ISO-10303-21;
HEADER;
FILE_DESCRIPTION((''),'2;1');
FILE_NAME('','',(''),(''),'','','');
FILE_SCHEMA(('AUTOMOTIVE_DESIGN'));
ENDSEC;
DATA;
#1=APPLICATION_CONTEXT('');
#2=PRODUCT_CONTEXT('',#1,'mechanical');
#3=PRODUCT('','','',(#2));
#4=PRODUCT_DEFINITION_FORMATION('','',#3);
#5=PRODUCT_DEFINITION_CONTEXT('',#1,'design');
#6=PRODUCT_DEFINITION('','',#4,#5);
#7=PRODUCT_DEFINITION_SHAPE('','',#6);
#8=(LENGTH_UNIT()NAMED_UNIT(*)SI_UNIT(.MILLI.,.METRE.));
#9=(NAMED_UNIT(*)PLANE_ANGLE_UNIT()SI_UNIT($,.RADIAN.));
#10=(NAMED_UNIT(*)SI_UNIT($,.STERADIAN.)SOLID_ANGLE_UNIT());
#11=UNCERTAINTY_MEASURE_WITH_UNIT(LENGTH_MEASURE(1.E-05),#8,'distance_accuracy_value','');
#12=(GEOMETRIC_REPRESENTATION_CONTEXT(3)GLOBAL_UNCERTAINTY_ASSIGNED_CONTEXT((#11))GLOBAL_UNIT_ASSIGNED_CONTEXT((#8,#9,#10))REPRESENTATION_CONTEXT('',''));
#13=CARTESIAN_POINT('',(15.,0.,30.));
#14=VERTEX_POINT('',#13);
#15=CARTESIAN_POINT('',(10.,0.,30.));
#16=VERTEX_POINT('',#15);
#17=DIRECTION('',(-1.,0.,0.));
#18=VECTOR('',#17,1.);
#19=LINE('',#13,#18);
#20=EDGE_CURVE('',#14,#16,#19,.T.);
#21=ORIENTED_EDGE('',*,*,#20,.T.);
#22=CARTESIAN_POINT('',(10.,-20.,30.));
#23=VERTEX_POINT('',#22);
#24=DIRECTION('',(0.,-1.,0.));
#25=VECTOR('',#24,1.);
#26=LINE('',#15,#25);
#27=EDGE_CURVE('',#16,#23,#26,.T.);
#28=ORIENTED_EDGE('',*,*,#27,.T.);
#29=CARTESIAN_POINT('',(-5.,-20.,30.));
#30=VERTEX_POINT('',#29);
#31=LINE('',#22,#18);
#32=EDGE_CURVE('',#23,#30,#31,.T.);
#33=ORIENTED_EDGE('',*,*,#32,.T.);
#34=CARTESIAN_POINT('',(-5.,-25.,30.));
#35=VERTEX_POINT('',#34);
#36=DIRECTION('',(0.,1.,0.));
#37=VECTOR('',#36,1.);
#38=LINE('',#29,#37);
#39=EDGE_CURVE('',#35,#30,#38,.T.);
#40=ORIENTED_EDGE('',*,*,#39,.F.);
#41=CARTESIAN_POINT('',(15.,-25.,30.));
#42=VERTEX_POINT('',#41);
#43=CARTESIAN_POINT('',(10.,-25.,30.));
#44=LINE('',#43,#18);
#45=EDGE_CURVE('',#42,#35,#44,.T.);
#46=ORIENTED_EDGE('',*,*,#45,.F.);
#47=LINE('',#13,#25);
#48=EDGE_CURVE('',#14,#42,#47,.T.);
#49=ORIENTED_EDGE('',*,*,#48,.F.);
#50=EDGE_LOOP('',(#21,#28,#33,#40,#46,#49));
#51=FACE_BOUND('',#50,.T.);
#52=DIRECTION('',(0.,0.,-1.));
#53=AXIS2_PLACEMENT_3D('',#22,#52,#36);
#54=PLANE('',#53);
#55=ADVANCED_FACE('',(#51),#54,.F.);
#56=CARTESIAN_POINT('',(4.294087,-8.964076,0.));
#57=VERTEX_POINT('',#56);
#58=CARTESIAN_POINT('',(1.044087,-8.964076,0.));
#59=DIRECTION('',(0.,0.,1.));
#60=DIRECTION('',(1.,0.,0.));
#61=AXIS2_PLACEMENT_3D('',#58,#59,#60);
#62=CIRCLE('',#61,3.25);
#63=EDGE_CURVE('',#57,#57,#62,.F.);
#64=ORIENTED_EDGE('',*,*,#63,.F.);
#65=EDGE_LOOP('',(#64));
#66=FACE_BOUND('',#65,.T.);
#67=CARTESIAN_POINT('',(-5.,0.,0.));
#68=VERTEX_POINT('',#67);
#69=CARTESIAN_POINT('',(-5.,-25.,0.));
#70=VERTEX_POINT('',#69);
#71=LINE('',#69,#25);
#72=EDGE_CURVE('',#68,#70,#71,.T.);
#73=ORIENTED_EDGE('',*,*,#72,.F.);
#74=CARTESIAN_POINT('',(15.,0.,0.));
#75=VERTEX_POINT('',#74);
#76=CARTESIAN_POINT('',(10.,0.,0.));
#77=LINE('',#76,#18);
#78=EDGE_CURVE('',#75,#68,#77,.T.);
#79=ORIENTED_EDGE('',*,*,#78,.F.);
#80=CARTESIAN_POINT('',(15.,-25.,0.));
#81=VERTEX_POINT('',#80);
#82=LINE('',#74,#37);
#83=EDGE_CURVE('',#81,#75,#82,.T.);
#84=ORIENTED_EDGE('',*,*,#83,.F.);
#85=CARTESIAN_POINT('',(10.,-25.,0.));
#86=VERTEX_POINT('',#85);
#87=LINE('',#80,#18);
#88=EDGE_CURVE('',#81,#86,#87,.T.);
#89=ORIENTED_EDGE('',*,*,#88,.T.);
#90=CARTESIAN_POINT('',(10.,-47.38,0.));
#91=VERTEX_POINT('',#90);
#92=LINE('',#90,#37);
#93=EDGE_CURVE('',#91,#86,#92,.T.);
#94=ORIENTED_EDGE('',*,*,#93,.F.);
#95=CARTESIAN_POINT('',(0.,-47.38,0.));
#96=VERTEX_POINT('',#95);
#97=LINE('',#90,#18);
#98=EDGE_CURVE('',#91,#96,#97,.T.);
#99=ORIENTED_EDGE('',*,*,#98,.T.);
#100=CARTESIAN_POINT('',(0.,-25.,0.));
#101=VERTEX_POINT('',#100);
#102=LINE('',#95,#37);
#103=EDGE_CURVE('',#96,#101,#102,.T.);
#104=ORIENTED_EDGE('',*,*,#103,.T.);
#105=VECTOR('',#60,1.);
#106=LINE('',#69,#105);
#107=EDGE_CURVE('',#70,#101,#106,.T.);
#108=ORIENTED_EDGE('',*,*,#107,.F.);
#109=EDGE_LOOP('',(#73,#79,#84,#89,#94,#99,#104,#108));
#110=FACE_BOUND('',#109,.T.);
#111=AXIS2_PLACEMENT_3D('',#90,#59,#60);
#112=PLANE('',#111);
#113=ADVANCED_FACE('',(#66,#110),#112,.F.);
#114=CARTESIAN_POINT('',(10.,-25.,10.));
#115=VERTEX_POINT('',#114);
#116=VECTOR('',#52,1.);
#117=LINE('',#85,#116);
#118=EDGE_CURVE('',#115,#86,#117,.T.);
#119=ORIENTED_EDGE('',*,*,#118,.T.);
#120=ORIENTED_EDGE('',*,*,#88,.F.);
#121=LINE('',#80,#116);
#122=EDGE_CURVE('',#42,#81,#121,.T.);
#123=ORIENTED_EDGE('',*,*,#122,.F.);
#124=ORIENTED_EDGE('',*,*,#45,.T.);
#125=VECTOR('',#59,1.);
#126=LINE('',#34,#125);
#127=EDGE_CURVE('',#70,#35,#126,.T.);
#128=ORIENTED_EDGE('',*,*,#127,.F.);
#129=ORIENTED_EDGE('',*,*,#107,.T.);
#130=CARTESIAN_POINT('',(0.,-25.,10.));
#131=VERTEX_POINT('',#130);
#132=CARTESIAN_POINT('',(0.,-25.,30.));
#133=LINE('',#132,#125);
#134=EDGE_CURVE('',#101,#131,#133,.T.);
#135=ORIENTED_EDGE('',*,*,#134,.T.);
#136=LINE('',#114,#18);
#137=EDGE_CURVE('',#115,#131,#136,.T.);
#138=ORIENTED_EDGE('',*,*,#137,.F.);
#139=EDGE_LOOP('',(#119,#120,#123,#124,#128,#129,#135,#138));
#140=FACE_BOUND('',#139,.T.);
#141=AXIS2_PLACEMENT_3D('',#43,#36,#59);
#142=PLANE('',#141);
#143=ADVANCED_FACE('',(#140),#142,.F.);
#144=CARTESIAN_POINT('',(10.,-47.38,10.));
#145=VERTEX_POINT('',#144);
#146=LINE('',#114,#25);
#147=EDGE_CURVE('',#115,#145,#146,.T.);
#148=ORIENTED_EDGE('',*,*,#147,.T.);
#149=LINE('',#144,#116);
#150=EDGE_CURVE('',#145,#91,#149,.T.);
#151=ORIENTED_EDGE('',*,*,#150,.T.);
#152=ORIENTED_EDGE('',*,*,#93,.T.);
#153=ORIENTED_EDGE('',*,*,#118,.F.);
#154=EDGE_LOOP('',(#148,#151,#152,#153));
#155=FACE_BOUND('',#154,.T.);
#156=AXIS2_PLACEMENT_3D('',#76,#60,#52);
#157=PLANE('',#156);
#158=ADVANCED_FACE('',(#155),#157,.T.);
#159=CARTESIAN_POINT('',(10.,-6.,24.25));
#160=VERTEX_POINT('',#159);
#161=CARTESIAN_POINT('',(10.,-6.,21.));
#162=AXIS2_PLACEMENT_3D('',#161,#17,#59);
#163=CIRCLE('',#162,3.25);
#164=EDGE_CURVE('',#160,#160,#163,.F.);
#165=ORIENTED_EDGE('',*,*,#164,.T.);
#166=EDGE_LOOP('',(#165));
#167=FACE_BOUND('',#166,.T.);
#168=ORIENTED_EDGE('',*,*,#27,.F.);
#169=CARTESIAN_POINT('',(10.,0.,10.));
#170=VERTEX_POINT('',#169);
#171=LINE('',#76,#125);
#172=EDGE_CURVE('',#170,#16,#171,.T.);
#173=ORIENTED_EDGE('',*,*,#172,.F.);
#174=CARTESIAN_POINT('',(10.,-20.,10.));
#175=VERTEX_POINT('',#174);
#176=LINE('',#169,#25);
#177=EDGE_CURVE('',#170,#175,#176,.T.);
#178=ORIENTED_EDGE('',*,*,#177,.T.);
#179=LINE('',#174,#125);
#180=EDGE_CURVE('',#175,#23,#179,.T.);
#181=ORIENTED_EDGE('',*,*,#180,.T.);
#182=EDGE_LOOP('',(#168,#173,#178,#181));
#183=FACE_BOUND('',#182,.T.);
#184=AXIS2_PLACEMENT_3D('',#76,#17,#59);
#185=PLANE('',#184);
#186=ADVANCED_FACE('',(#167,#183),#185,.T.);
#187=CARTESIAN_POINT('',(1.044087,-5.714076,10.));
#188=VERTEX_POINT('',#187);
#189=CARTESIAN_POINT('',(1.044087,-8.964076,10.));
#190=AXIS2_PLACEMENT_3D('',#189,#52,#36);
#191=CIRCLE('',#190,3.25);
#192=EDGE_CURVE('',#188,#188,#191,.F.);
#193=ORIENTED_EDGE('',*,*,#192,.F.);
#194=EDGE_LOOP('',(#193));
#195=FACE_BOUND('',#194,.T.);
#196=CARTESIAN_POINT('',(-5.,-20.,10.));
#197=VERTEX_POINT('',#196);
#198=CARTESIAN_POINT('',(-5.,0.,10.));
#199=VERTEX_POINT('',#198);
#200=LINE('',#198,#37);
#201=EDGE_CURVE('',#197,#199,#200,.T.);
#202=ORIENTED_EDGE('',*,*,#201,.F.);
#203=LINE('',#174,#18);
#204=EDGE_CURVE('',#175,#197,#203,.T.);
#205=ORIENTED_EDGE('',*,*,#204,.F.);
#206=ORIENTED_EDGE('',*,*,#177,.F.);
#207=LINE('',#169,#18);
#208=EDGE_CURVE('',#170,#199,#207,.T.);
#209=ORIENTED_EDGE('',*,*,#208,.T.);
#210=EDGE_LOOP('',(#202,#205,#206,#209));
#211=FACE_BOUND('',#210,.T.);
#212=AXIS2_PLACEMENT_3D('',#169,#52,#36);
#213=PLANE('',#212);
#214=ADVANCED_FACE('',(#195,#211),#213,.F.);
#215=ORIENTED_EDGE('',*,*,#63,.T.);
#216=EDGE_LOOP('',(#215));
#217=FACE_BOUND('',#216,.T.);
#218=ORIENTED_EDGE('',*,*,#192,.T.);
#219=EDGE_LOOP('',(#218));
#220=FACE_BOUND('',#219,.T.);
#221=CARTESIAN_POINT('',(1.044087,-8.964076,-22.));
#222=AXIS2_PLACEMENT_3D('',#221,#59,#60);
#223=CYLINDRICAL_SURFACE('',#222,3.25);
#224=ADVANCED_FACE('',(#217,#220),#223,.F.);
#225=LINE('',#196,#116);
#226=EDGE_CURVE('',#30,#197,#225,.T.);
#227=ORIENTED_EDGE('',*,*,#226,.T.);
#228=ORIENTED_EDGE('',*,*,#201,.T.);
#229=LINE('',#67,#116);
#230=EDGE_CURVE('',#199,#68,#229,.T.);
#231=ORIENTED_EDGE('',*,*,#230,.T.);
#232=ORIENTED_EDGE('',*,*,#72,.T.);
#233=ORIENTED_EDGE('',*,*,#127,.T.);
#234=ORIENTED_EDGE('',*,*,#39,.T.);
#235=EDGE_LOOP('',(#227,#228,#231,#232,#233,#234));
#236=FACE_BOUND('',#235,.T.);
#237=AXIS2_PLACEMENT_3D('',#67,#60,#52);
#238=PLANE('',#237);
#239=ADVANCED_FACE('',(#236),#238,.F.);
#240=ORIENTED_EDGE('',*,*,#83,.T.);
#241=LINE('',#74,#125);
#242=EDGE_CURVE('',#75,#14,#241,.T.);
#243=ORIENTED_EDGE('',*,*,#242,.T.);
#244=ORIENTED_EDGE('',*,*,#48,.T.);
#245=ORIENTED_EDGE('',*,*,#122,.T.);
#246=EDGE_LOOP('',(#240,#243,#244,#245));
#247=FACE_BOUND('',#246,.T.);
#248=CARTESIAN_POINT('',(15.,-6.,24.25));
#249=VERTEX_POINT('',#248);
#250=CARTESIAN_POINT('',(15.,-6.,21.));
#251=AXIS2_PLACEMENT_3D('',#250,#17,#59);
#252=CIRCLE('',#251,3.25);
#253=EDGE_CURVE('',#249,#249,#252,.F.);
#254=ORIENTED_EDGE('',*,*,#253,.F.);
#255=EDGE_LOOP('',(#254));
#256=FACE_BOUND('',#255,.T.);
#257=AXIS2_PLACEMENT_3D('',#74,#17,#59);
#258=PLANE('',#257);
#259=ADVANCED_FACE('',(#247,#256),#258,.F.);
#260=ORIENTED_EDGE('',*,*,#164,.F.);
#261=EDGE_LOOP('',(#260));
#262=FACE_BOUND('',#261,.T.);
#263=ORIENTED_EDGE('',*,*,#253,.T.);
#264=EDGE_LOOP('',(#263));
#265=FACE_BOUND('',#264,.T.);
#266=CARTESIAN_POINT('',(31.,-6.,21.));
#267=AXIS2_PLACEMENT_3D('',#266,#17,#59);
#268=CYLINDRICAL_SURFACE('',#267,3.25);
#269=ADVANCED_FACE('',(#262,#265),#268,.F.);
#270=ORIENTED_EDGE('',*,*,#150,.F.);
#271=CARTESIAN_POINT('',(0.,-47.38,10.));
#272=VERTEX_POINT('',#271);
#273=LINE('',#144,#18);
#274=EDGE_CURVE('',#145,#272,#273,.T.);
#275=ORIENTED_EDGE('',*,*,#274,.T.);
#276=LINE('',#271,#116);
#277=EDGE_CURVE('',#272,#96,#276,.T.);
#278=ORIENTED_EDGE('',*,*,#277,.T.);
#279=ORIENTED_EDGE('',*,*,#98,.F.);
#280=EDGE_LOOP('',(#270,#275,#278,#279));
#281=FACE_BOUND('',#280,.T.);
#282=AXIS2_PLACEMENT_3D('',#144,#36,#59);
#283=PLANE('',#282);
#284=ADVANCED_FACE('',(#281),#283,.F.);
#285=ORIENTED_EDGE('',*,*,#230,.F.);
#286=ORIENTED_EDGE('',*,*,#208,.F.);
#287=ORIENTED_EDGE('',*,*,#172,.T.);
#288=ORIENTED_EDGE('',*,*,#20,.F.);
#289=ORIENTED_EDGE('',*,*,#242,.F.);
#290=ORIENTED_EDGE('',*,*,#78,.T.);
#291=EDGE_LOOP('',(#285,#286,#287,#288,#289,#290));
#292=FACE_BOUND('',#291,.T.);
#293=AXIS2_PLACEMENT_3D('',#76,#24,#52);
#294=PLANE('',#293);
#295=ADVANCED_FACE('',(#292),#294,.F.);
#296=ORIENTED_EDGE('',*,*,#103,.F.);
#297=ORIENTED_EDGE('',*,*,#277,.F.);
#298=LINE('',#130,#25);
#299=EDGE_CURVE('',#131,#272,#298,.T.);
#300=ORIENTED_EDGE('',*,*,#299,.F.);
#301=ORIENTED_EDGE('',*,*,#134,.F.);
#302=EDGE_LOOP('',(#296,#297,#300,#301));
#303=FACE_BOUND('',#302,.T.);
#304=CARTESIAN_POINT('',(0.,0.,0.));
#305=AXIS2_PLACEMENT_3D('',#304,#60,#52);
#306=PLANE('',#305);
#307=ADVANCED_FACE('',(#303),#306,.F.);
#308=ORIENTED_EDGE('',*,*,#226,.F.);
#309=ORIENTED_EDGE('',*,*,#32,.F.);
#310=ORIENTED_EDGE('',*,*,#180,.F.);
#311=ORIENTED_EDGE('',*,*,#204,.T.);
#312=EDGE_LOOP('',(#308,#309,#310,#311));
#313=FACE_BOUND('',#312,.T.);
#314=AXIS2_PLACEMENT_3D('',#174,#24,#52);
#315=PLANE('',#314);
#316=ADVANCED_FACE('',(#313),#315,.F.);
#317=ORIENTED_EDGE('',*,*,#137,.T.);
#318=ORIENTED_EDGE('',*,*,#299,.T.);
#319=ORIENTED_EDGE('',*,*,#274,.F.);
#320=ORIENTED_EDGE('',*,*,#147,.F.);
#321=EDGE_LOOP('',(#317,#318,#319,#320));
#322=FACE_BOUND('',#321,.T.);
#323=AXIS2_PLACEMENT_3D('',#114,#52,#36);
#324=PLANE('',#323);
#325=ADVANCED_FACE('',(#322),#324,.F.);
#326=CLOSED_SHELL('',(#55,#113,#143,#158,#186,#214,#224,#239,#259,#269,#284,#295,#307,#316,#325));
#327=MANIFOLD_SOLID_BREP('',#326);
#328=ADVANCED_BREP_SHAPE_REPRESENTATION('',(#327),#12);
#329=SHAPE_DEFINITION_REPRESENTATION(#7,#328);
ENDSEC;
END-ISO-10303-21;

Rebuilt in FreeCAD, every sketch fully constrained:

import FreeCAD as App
import Part
import Sketcher

V = App.Vector
Q = App.Units.Quantity

doc = App.newDocument("Part")
body = doc.addObject("PartDesign::Body", "Body")

# Sketch on YZ plane
sketch1 = body.newObject("Sketcher::SketchObject", "Sketch")
sketch1.AttachmentSupport = (doc.getObject("YZ_Plane"), [""])
sketch1.MapMode = "FlatFace"
sketch1.addGeometry([
    Part.LineSegment(V(0, 0, 0), V(0, 10, 0)),  # 0
    Part.LineSegment(V(0, 10, 0), V(-20, 10, 0)),  # 1
    Part.LineSegment(V(-20, 10, 0), V(-20, 30, 0)),  # 2
    Part.LineSegment(V(-20, 30, 0), V(-25, 30, 0)),  # 3
    Part.LineSegment(V(-25, 30, 0), V(-25, 10, 0)),  # 4
    Part.LineSegment(V(-25, 10, 0), V(-47.38, 10, 0)),  # 5
    Part.LineSegment(V(-47.38, 10, 0), V(-47.38, 0, 0)),  # 6
    Part.LineSegment(V(-47.38, 0, 0), V(0, 0, 0)),  # 7
], False)
sketch1.addConstraint([
    Sketcher.Constraint("Coincident", 0, 2, 1, 1),
    Sketcher.Constraint("Coincident", 1, 2, 2, 1),
    Sketcher.Constraint("Coincident", 2, 2, 3, 1),
    Sketcher.Constraint("Coincident", 3, 2, 4, 1),
    Sketcher.Constraint("Coincident", 4, 2, 5, 1),
    Sketcher.Constraint("Coincident", 5, 2, 6, 1),
    Sketcher.Constraint("Coincident", 6, 2, 7, 1),
    Sketcher.Constraint("Coincident", 7, 2, 0, 1),
    Sketcher.Constraint("Vertical", 0),
    Sketcher.Constraint("Horizontal", 1),
    Sketcher.Constraint("Vertical", 2),
    Sketcher.Constraint("Horizontal", 3),
    Sketcher.Constraint("Vertical", 4),
    Sketcher.Constraint("Horizontal", 5),
    Sketcher.Constraint("Vertical", 6),
    Sketcher.Constraint("Horizontal", 7),
    Sketcher.Constraint("Coincident", 7, 2, -1, 1),
    Sketcher.Constraint("Horizontal", 1, 2, 4, 2),
    Sketcher.Constraint("Equal", 1, 2),
    Sketcher.Constraint("DistanceX", 1, 2, 1, 1, Q("20 mm")),
    Sketcher.Constraint("DistanceX", 3, 2, 3, 1, Q("5 mm")),
    Sketcher.Constraint("DistanceY", 0, 1, 0, 2, Q("10 mm")),
    Sketcher.Constraint("DistanceX", 5, 2, 5, 1, Q("22.38 mm")),
])
pad1 = body.newObject("PartDesign::Pad", "Pad")
pad1.Profile = sketch1
pad1.Length = 10

# Sketch on YZ plane
sketch2 = body.newObject("Sketcher::SketchObject", "Sketch001")
sketch2.AttachmentSupport = (doc.getObject("YZ_Plane"), [""])
sketch2.MapMode = "FlatFace"
sketch2.addGeometry([
    Part.LineSegment(V(0, 10, 0), V(0, 0, 0)),  # 0
    Part.LineSegment(V(0, 0, 0), V(-25, 0, 0)),  # 1
    Part.LineSegment(V(-25, 0, 0), V(-25, 30, 0)),  # 2
    Part.LineSegment(V(-25, 30, 0), V(-20, 30, 0)),  # 3
    Part.LineSegment(V(-20, 30, 0), V(-20, 10, 0)),  # 4
    Part.LineSegment(V(-20, 10, 0), V(0, 10, 0)),  # 5
], False)
sketch2.addConstraint([
    Sketcher.Constraint("Coincident", 0, 2, 1, 1),
    Sketcher.Constraint("Coincident", 1, 2, 2, 1),
    Sketcher.Constraint("Coincident", 2, 2, 3, 1),
    Sketcher.Constraint("Coincident", 3, 2, 4, 1),
    Sketcher.Constraint("Coincident", 4, 2, 5, 1),
    Sketcher.Constraint("Coincident", 5, 2, 0, 1),
    Sketcher.Constraint("Vertical", 0),
    Sketcher.Constraint("Horizontal", 1),
    Sketcher.Constraint("Vertical", 2),
    Sketcher.Constraint("Horizontal", 3),
    Sketcher.Constraint("Vertical", 4),
    Sketcher.Constraint("Horizontal", 5),
    Sketcher.Constraint("Coincident", 0, 2, -1, 1),
    Sketcher.Constraint("Equal", 5, 4),
    Sketcher.Constraint("DistanceX", 1, 2, 1, 1, Q("25 mm")),
    Sketcher.Constraint("DistanceX", 3, 1, 3, 2, Q("5 mm")),
    Sketcher.Constraint("DistanceY", 0, 2, 0, 1, Q("10 mm")),
])
pad2 = body.newObject("PartDesign::Pad", "Pad001")
pad2.Profile = sketch2
pad2.Length = 5
pad2.Reversed = True

# Sketch on YZ plane
sketch3 = body.newObject("Sketcher::SketchObject", "Sketch002")
sketch3.AttachmentSupport = (doc.getObject("YZ_Plane"), [""])
sketch3.MapMode = "FlatFace"
sketch3.AttachmentOffset = App.Placement(V(0, 0, 10), App.Rotation())
sketch3.addGeometry([
    Part.LineSegment(V(0, 30, 0), V(-25, 30, 0)),
    Part.LineSegment(V(-25, 30, 0), V(-25, 0, 0)),
    Part.LineSegment(V(-25, 0, 0), V(0, 0, 0)),
    Part.LineSegment(V(0, 0, 0), V(0, 30, 0)),
], False)
sketch3.addConstraint([
    Sketcher.Constraint("Coincident", 0, 2, 1, 1),
    Sketcher.Constraint("Coincident", 1, 2, 2, 1),
    Sketcher.Constraint("Coincident", 2, 2, 3, 1),
    Sketcher.Constraint("Coincident", 3, 2, 0, 1),
    Sketcher.Constraint("Horizontal", 0),
    Sketcher.Constraint("Vertical", 1),
    Sketcher.Constraint("Horizontal", 2),
    Sketcher.Constraint("Vertical", 3),
    Sketcher.Constraint("Coincident", 2, 2, -1, 1),
    Sketcher.Constraint("DistanceX", 0, 2, 0, 1, Q("25 mm")),
    Sketcher.Constraint("DistanceY", 1, 2, 1, 1, Q("30 mm")),
])
pad3 = body.newObject("PartDesign::Pad", "Pad002")
pad3.Profile = sketch3
pad3.Length = 5

# Sketch on XY plane
sketch4 = body.newObject("Sketcher::SketchObject", "Sketch003")
sketch4.AttachmentSupport = (doc.getObject("XY_Plane"), [""])
sketch4.MapMode = "FlatFace"
sketch4.addGeometry(Part.Circle(V(1.044087, -8.964076, 0), V(0, 0, 1), 3.25), False)
sketch4.addConstraint([
    Sketcher.Constraint("Diameter", 0, Q("6.5 mm")),
    Sketcher.Constraint("DistanceX", -1, 1, 0, 3, Q("1.044087 mm")),
    Sketcher.Constraint("DistanceY", 0, 3, -1, 1, Q("8.964076 mm")),
])
pocket1 = body.newObject("PartDesign::Pocket", "Pocket")
pocket1.Profile = sketch4
pocket1.Type = "ThroughAll"
pocket1.Midplane = True

# Sketch on YZ plane
sketch5 = body.newObject("Sketcher::SketchObject", "Sketch004")
sketch5.AttachmentSupport = (doc.getObject("YZ_Plane"), [""])
sketch5.MapMode = "FlatFace"
sketch5.AttachmentOffset = App.Placement(V(0, 0, 15), App.Rotation())
sketch5.addGeometry(Part.Circle(V(-6, 21, 0), V(0, 0, 1), 3.25), False)
sketch5.addConstraint([
    Sketcher.Constraint("Diameter", 0, Q("6.5 mm")),
    Sketcher.Constraint("DistanceX", 0, 3, -1, 1, Q("6 mm")),
    Sketcher.Constraint("DistanceY", -1, 1, 0, 3, Q("21 mm")),
])
pocket2 = body.newObject("PartDesign::Pocket", "Pocket001")
pocket2.Profile = sketch5
pocket2.Type = "ThroughAll"
pocket2.Midplane = True

doc.recompute()
